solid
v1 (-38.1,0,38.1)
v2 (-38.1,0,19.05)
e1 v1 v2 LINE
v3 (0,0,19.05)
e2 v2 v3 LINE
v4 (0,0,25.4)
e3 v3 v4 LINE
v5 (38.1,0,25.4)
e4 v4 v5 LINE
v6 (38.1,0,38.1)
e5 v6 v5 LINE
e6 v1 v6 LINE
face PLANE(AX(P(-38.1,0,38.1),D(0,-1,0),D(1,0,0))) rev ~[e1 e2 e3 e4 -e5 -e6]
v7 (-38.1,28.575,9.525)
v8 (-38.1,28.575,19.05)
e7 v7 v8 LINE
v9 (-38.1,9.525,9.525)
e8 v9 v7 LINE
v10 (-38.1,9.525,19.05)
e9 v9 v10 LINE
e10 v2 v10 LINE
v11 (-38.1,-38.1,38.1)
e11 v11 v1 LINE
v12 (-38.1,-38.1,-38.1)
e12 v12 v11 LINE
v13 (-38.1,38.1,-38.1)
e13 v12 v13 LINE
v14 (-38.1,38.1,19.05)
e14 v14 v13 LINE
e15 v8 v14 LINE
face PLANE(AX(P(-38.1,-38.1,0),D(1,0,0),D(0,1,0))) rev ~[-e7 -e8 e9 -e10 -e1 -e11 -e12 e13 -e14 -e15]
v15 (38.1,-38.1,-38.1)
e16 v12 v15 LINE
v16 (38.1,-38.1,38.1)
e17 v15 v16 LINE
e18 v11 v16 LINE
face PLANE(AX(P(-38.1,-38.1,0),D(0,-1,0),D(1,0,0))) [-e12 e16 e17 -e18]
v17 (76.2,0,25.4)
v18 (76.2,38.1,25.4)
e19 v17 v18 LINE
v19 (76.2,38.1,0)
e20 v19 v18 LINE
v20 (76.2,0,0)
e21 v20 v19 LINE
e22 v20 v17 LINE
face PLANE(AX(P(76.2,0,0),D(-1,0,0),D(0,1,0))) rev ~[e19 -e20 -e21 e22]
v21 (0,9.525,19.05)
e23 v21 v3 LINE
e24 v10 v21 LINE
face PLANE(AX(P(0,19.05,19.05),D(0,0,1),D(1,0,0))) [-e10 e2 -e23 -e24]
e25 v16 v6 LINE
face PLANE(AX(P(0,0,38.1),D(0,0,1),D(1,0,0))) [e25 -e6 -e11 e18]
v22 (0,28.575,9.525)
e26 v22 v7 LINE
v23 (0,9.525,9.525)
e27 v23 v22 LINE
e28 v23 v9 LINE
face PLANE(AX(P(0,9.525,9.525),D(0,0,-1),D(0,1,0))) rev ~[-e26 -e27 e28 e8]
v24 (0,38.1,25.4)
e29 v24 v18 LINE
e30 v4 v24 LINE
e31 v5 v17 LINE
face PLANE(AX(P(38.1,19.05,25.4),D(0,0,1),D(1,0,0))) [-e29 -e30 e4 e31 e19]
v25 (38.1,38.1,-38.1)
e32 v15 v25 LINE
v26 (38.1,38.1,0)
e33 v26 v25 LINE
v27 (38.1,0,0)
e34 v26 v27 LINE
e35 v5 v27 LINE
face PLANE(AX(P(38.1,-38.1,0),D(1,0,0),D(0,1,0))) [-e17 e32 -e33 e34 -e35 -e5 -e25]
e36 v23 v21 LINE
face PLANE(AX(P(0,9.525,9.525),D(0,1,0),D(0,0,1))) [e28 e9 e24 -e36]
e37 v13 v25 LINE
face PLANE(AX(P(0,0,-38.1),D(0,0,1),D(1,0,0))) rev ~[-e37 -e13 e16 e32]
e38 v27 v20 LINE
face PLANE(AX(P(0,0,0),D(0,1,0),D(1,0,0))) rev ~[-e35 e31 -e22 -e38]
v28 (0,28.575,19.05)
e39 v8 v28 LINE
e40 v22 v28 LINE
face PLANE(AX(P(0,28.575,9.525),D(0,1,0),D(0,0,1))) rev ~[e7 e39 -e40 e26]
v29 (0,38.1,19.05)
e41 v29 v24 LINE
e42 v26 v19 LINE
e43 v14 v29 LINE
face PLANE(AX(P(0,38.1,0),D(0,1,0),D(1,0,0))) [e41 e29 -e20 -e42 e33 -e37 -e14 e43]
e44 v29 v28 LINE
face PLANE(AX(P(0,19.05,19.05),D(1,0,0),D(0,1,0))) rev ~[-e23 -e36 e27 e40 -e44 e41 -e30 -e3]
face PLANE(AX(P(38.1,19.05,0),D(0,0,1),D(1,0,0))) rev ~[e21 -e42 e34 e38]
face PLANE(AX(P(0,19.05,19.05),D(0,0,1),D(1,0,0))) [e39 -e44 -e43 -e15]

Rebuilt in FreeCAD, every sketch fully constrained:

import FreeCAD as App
import Part
import Sketcher
from FreeCAD import Vector
Q = App.Units.Quantity

doc = App.newDocument("Part")
body = doc.addObject("PartDesign::Body", "Body")

sketch1 = body.newObject("Sketcher::SketchObject", "Sketch")
sketch1.AttachmentSupport = (doc.getObject("XY_Plane"), [""])
sketch1.MapMode = "FlatFace"
sketch1.addGeometry([
    Part.LineSegment(Vector(-38.1, 38.1, 0), Vector(-38.1, -38.1, 0)),
    Part.LineSegment(Vector(-38.1, -38.1, 0), Vector(38.1, -38.1, 0)),
    Part.LineSegment(Vector(38.1, -38.1, 0), Vector(38.1, 38.1, 0)),
    Part.LineSegment(Vector(38.1, 38.1, 0), Vector(-38.1, 38.1, 0)),
], False)
sketch1.addConstraint([
    Sketcher.Constraint("Coincident", 0, 2, 1, 1),
    Sketcher.Constraint("Coincident", 1, 2, 2, 1),
    Sketcher.Constraint("Coincident", 2, 2, 3, 1),
    Sketcher.Constraint("Coincident", 3, 2, 0, 1),
    Sketcher.Constraint("Vertical", 0),
    Sketcher.Constraint("Horizontal", 1),
    Sketcher.Constraint("Vertical", 2),
    Sketcher.Constraint("Horizontal", 3),
    Sketcher.Constraint("Symmetric", 0, 2, 2, 2, -1, 1),
    Sketcher.Constraint("Equal", 3, 0),
    Sketcher.Constraint("DistanceX", 1, 1, 1, 2, Q("3 in")),
])
pad1 = body.newObject("PartDesign::Pad", "Pad")
pad1.Profile = sketch1
pad1.Length = Q("3 in")
pad1.Midplane = True

sketch2 = body.newObject("Sketcher::SketchObject", "Sketch001")
sketch2.AttachmentSupport = (doc.getObject("YZ_Plane"), [""])
sketch2.MapMode = "FlatFace"
sketch2.addGeometry([
    Part.LineSegment(Vector(9.525, 28.575, 0), Vector(9.525, 9.525, 0)),
    Part.LineSegment(Vector(9.525, 9.525, 0), Vector(28.575, 9.525, 0)),
    Part.LineSegment(Vector(28.575, 9.525, 0), Vector(28.575, 28.575, 0)),
    Part.LineSegment(Vector(28.575, 28.575, 0), Vector(9.525, 28.575, 0)),
], False)
sketch2.addConstraint([
    Sketcher.Constraint("Coincident", 0, 2, 1, 1),
    Sketcher.Constraint("Coincident", 1, 2, 2, 1),
    Sketcher.Constraint("Coincident", 2, 2, 3, 1),
    Sketcher.Constraint("Coincident", 3, 2, 0, 1),
    Sketcher.Constraint("Vertical", 0),
    Sketcher.Constraint("Horizontal", 1),
    Sketcher.Constraint("Vertical", 2),
    Sketcher.Constraint("Horizontal", 3),
    Sketcher.Constraint("Equal", 3, 0),
    Sketcher.Constraint("DistanceX", 1, 1, 1, 2, Q("0.75 in")),
    Sketcher.Constraint("DistanceX", -1, 1, 0, 2, Q("0.375 in")),
    Sketcher.Constraint("DistanceY", -1, 1, 0, 2, Q("0.375 in")),
])
pocket1 = body.newObject("PartDesign::Pocket", "Pocket")
pocket1.Profile = sketch2
pocket1.Length = Q("1.5 in")

sketch3 = body.newObject("Sketcher::SketchObject", "Sketch002")
sketch3.AttachmentSupport = (doc.getObject("XY_Plane"), [""])
sketch3.MapMode = "FlatFace"
sketch3.AttachmentOffset = App.Placement(Vector(0, 0, 1.5 * 25.4), App.Rotation())
sketch3.addGeometry([
    Part.LineSegment(Vector(-38.1, 38.1, 0), Vector(-38.1, 0, 0)),
    Part.LineSegment(Vector(-38.1, 0, 0), Vector(38.1, 0, 0)),
    Part.LineSegment(Vector(38.1, 0, 0), Vector(38.1, 38.1, 0)),
    Part.LineSegment(Vector(38.1, 38.1, 0), Vector(-38.1, 38.1, 0)),
], False)
sketch3.addConstraint([
    Sketcher.Constraint("Coincident", 0, 2, 1, 1),
    Sketcher.Constraint("Coincident", 1, 2, 2, 1),
    Sketcher.Constraint("Coincident", 2, 2, 3, 1),
    Sketcher.Constraint("Coincident", 3, 2, 0, 1),
    Sketcher.Constraint("Vertical", 0),
    Sketcher.Constraint("Horizontal", 1),
    Sketcher.Constraint("Vertical", 2),
    Sketcher.Constraint("Horizontal", 3),
    Sketcher.Constraint("Symmetric", 0, 2, 1, 2, -1, 1),
    Sketcher.Constraint("DistanceX", 1, 1, 1, 2, Q("3 in")),
    Sketcher.Constraint("DistanceY", 0, 2, 0, 1, Q("1.5 in")),
])
pocket2 = body.newObject("PartDesign::Pocket", "Pocket001")
pocket2.Profile = sketch3
pocket2.Length = Q("0.75 in")

sketch4 = body.newObject("Sketcher::SketchObject", "Sketch003")
sketch4.AttachmentSupport = (doc.getObject("XY_Plane"), [""])
sketch4.MapMode = "FlatFace"
sketch4.addGeometry([
    Part.LineSegment(Vector(0, 38.1, 0), Vector(0, 0, 0)),
    Part.LineSegment(Vector(0, 0, 0), Vector(76.2, 0, 0)),
    Part.LineSegment(Vector(76.2, 0, 0), Vector(76.2, 38.1, 0)),
    Part.LineSegment(Vector(76.2, 38.1, 0), Vector(0, 38.1, 0)),
], False)
sketch4.addConstraint([
    Sketcher.Constraint("Coincident", 0, 2, 1, 1),
    Sketcher.Constraint("Coincident", 1, 2, 2, 1),
    Sketcher.Constraint("Coincident", 2, 2, 3, 1),
    Sketcher.Constraint("Coincident", 3, 2, 0, 1),
    Sketcher.Constraint("Vertical", 0),
    Sketcher.Constraint("Horizontal", 1),
    Sketcher.Constraint("Vertical", 2),
    Sketcher.Constraint("Horizontal", 3),
    Sketcher.Constraint("Coincident", 0, 2, -1, 1),
    Sketcher.Constraint("DistanceX", 1, 1, 1, 2, Q("3 in")),
    Sketcher.Constraint("DistanceY", 0, 2, 0, 1, Q("1.5 in")),
])
pad2 = body.newObject("PartDesign::Pad", "Pad001")
pad2.Profile = sketch4
pad2.Length = Q("1 in")

doc.recompute()
